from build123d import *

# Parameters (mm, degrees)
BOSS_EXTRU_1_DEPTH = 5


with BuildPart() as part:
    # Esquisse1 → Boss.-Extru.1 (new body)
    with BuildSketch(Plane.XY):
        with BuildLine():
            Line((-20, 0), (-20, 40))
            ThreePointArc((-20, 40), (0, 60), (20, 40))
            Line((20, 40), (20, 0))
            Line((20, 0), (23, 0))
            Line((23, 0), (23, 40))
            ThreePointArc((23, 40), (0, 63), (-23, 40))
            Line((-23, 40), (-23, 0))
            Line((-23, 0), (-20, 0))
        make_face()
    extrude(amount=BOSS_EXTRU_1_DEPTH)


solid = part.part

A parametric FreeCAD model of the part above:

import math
import FreeCAD as App
import Part
import Sketcher
from FreeCAD import Vector
Q = App.Units.Quantity

doc = App.newDocument("Part")
body = doc.addObject("PartDesign::Body", "Body")

# Sketch on XY plane
sketch1 = body.newObject("Sketcher::SketchObject", "Sketch")
sketch1.AttachmentSupport = (doc.getObject("XY_Plane"), [""])
sketch1.MapMode = "FlatFace"
sketch1.addGeometry([
    Part.LineSegment(Vector(-20, 0, 0), Vector(-20, 40, 0)),  # 0
    Part.ArcOfCircle(Part.Circle(Vector(0, 40, 0), Vector(0, 0, 1), 20), math.radians(0), math.radians(180)),  # 1
    Part.LineSegment(Vector(20, 40, 0), Vector(20, 0, 0)),  # 2
    Part.LineSegment(Vector(20, 0, 0), Vector(23, 0, 0)),  # 3
    Part.LineSegment(Vector(23, 0, 0), Vector(23, 40, 0)),  # 4
    Part.ArcOfCircle(Part.Circle(Vector(0, 40, 0), Vector(0, 0, 1), 23), math.radians(0), math.radians(180)),  # 5
    Part.LineSegment(Vector(-23, 40, 0), Vector(-23, 0, 0)),  # 6
    Part.LineSegment(Vector(-23, 0, 0), Vector(-20, 0, 0)),  # 7
], False)
sketch1.addConstraint([
    Sketcher.Constraint("Tangent", 0, 2, 1, 2),
    Sketcher.Constraint("Tangent", 1, 1, 2, 1),
    Sketcher.Constraint("Coincident", 2, 2, 3, 1),
    Sketcher.Constraint("Coincident", 3, 2, 4, 1),
    Sketcher.Constraint("Tangent", 4, 2, 5, 1),
    Sketcher.Constraint("Tangent", 5, 2, 6, 1),
    Sketcher.Constraint("Coincident", 6, 2, 7, 1),
    Sketcher.Constraint("Coincident", 7, 2, 0, 1),
    Sketcher.Constraint("Vertical", 0),
    Sketcher.Constraint("Vertical", 2),
    Sketcher.Constraint("Horizontal", 3),
    Sketcher.Constraint("Vertical", 4),
    Sketcher.Constraint("Vertical", 6),
    Sketcher.Constraint("Horizontal", 7),
    Sketcher.Constraint("Coincident", 5, 3, 1, 3),
    Sketcher.Constraint("Symmetric", 3, 2, 6, 2, -1, 1),
    Sketcher.Constraint("PointOnObject", 2, 2, -1),
    Sketcher.Constraint("Radius", 1, Q("20 mm")),
    Sketcher.Constraint("Radius", 5, Q("23 mm")),
    Sketcher.Constraint("DistanceY", 0, 1, 0, 2, Q("40 mm")),
])
pad1 = body.newObject("PartDesign::Pad", "Pad")
pad1.Profile = sketch1
pad1.Length = 5

doc.recompute()
